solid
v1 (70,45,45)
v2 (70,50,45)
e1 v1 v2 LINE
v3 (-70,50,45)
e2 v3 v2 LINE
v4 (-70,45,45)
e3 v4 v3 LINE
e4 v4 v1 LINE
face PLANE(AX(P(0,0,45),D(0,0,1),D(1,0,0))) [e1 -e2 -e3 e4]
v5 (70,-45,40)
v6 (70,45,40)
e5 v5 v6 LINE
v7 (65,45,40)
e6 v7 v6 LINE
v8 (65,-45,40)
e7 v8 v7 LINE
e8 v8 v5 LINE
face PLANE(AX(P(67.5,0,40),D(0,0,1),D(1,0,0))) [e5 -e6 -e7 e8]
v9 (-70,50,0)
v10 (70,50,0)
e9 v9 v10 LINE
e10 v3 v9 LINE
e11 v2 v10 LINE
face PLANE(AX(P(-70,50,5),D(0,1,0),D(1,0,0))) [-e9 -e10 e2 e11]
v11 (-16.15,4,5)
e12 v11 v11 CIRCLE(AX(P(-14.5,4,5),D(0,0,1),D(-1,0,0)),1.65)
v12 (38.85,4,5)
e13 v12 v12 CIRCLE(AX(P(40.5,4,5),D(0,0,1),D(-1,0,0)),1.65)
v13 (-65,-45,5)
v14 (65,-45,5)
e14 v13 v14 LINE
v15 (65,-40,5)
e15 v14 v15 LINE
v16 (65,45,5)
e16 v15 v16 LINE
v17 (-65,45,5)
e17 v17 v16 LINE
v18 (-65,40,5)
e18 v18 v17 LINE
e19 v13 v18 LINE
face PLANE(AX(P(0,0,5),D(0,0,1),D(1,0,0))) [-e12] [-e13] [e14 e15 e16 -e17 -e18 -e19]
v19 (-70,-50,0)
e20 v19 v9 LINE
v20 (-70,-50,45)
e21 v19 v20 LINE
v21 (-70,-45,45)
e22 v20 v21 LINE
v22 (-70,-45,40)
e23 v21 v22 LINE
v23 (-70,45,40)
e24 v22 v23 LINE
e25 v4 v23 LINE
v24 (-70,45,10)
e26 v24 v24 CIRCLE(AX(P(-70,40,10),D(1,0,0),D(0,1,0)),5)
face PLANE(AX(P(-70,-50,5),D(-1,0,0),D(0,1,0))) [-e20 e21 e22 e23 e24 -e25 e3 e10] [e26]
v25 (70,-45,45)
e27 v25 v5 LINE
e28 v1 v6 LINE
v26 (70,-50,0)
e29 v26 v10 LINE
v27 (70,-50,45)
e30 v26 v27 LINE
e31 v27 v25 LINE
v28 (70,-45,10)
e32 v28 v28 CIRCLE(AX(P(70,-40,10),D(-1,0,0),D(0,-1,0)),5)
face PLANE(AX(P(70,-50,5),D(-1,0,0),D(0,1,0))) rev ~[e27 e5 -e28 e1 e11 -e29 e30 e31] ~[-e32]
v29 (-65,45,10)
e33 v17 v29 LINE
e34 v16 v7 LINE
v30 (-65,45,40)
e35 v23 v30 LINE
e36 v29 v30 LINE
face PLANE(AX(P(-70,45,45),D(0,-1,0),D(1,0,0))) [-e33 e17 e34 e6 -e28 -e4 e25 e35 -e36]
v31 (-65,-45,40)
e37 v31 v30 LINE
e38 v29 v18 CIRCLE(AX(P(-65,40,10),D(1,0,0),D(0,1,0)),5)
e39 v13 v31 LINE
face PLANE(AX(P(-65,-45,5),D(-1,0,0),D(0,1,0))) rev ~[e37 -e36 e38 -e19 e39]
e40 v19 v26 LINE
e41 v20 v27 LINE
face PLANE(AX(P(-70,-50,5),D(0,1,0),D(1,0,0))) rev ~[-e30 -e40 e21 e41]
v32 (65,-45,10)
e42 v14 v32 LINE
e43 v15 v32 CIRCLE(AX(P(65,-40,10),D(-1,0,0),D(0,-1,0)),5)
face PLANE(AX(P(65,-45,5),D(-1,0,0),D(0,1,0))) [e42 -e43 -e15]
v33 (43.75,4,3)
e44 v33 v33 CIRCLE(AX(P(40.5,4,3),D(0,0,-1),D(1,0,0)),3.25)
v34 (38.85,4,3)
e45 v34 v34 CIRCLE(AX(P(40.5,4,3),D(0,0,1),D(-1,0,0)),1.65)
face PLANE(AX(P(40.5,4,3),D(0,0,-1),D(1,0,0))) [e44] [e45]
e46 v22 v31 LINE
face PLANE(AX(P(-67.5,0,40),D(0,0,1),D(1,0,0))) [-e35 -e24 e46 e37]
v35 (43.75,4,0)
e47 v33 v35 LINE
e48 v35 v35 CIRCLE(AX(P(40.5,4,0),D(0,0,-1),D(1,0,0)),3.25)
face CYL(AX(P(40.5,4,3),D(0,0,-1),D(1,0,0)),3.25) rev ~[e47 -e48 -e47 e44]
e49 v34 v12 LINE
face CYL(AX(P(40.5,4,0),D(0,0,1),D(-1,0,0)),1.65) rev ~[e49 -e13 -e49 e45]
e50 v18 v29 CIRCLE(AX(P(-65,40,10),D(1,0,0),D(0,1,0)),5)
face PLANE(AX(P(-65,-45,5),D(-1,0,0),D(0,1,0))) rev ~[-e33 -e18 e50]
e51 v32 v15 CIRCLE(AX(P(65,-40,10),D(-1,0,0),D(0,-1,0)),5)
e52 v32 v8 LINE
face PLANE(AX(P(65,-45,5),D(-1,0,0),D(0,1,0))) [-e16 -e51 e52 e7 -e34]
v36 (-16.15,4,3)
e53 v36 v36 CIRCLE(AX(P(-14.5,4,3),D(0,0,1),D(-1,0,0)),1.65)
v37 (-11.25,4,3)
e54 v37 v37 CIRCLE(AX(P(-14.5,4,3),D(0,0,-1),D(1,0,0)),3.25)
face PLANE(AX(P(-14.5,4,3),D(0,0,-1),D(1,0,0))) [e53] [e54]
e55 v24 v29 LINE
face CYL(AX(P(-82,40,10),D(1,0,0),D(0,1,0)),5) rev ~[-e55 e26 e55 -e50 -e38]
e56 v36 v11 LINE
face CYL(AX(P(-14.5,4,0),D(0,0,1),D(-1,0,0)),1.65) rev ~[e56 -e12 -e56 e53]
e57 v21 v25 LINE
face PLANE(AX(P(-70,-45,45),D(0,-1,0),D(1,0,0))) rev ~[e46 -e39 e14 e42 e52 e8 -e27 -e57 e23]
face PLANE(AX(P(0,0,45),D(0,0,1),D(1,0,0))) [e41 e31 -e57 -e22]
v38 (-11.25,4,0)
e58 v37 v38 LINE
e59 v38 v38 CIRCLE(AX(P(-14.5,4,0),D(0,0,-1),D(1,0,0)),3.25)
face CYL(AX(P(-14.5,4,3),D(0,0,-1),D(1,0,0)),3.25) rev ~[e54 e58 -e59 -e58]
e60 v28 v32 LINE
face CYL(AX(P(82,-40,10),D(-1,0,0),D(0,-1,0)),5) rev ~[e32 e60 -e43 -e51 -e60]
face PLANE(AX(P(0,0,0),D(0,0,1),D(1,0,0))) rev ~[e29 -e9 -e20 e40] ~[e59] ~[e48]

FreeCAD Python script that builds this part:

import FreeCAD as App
import Part
import Sketcher

V = App.Vector

doc = App.newDocument("Part")
body = doc.addObject("PartDesign::Body", "Body")

# Sketch on XY plane
sketch1 = doc.addObject("Sketcher::SketchObject", "Sketch")
body.addObject(sketch1)
sketch1.AttachmentSupport = (doc.XY_Plane, [""])
sketch1.MapMode = "FlatFace"
sketch1.addGeometry([
    Part.LineSegment(V(-70, 50, 0), V(-70, -50, 0)),
    Part.LineSegment(V(-70, -50, 0), V(70, -50, 0)),
    Part.LineSegment(V(70, -50, 0), V(70, 50, 0)),
    Part.LineSegment(V(70, 50, 0), V(-70, 50, 0)),
], False)
sketch1.addConstraint([
    Sketcher.Constraint("Coincident", 0, 2, 1, 1),
    Sketcher.Constraint("Coincident", 1, 2, 2, 1),
    Sketcher.Constraint("Coincident", 2, 2, 3, 1),
    Sketcher.Constraint("Coincident", 3, 2, 0, 1),
    Sketcher.Constraint("Vertical", 0),
    Sketcher.Constraint("Horizontal", 1),
    Sketcher.Constraint("Vertical", 2),
    Sketcher.Constraint("Horizontal", 3),
    Sketcher.Constraint("Symmetric", 0, 2, 2, 2, -1, 1),
    Sketcher.Constraint("DistanceX", 1, 1, 1, 2, 140.0),
    Sketcher.Constraint("DistanceY", 0, 2, 0, 1, 100.0),
])
pad1 = doc.addObject("PartDesign::Pad", "Pad")
body.addObject(pad1)
pad1.Profile = sketch1
pad1.Length = 5

# Sketch on XY plane
sketch2 = doc.addObject("Sketcher::SketchObject", "Sketch001")
body.addObject(sketch2)
sketch2.AttachmentSupport = (doc.XY_Plane, [""])
sketch2.MapMode = "FlatFace"
sketch2.AttachmentOffset = App.Placement(V(0, 0, 5), App.Rotation())
sketch2.addGeometry([
    Part.LineSegment(V(-70, 50, 0), V(-70, -50, 0)),  # 0
    Part.LineSegment(V(-70, -50, 0), V(70, -50, 0)),  # 1
    Part.LineSegment(V(70, -50, 0), V(70, 50, 0)),  # 2
    Part.LineSegment(V(70, 50, 0), V(-70, 50, 0)),  # 3
    Part.LineSegment(V(65, -45, 0), V(-65, -45, 0)),  # 4
    Part.LineSegment(V(-65, -45, 0), V(-65, 45, 0)),  # 5
    Part.LineSegment(V(-65, 45, 0), V(65, 45, 0)),  # 6
    Part.LineSegment(V(65, 45, 0), V(65, -45, 0)),  # 7
], False)
sketch2.addConstraint([
    Sketcher.Constraint("Coincident", 0, 2, 1, 1),
    Sketcher.Constraint("Coincident", 1, 2, 2, 1),
    Sketcher.Constraint("Coincident", 2, 2, 3, 1),
    Sketcher.Constraint("Coincident", 3, 2, 0, 1),
    Sketcher.Constraint("Coincident", 4, 2, 5, 1),
    Sketcher.Constraint("Coincident", 5, 2, 6, 1),
    Sketcher.Constraint("Coincident", 6, 2, 7, 1),
    Sketcher.Constraint("Coincident", 7, 2, 4, 1),
    Sketcher.Constraint("Vertical", 0),
    Sketcher.Constraint("Horizontal", 1),
    Sketcher.Constraint("Vertical", 2),
    Sketcher.Constraint("Horizontal", 3),
    Sketcher.Constraint("Horizontal", 4),
    Sketcher.Constraint("Vertical", 5),
    Sketcher.Constraint("Horizontal", 6),
    Sketcher.Constraint("Vertical", 7),
    Sketcher.Constraint("Symmetric", 0, 2, 2, 2, -1, 1),
    Sketcher.Constraint("Symmetric", 4, 2, 6, 2, -1, 1),
    Sketcher.Constraint("DistanceX", 1, 1, 1, 2, 140.0),
    Sketcher.Constraint("DistanceX", 4, 2, 4, 1, 130.0),
    Sketcher.Constraint("DistanceY", 0, 2, 0, 1, 100.0),
    Sketcher.Constraint("DistanceY", 5, 1, 5, 2, 90.0),
])
pad2 = doc.addObject("PartDesign::Pad", "Pad001")
body.addObject(pad2)
pad2.Profile = sketch2
pad2.Length = 40

# Sketch on XY plane
sketch3 = doc.addObject("Sketcher::SketchObject", "Sketch002")
body.addObject(sketch3)
sketch3.AttachmentSupport = (doc.XY_Plane, [""])
sketch3.MapMode = "FlatFace"
sketch3.addGeometry([
    Part.Circle(V(40.5, 4, 0), V(0, 0, 1), 1.6),
    Part.Circle(V(-14.5, 4, 0), V(0, 0, 1), 1.6),
], False)
sketch3.addConstraint([
    Sketcher.Constraint("Equal", 0, 1),
    Sketcher.Constraint("Horizontal", 0, 3, 1, 3),
    Sketcher.Constraint("Diameter", 0, 3.3),
    Sketcher.Constraint("DistanceY", -1, 1, 0, 3, 4.0),
    Sketcher.Constraint("DistanceX", 1, 3, 0, 3, 55.0),
    Sketcher.Constraint("DistanceX", -1, 1, 0, 3, 40.5),
])
doc.recompute()
hole = doc.addObject("PartDesign::Hole", "Hole")
body.addObject(hole)
hole.Profile = sketch3
hole.ThreadType = "None"
hole.Diameter = 3.3
hole.DepthType = "ThroughAll"
hole.HoleCutType = "Counterbore"
hole.HoleCutDiameter = 6.5
hole.HoleCutDepth = 3
hole.Reversed = True

# Sketch on YZ plane
sketch4 = doc.addObject("Sketcher::SketchObject", "Sketch003")
body.addObject(sketch4)
sketch4.AttachmentSupport = (doc.YZ_Plane, [""])
sketch4.MapMode = "FlatFace"
sketch4.AttachmentOffset = App.Placement(V(0, 0, 70), App.Rotation())
sketch4.addGeometry(Part.Circle(V(-40, 10, 0), V(0, 0, 1), 5), False)
sketch4.addConstraint([
    Sketcher.Constraint("Diameter", 0, 10.0),
    Sketcher.Constraint("DistanceX", 0, 3, -1, 1, 40.0),
    Sketcher.Constraint("DistanceY", -1, 1, 0, 3, 10.0),
])
doc.recompute()
hole2 = doc.addObject("PartDesign::Hole", "Hole001")
body.addObject(hole2)
hole2.Profile = sketch4
hole2.ThreadType = "None"
hole2.Diameter = 10
hole2.DepthType = "Dimension"
hole2.Depth = 12
hole2.DrillPoint = "Angled"
hole2.DrillPointAngle = 118

# Sketch on YZ plane
sketch5 = doc.addObject("Sketcher::SketchObject", "Sketch004")
body.addObject(sketch5)
sketch5.AttachmentSupport = (doc.YZ_Plane, [""])
sketch5.MapMode = "FlatFace"
sketch5.AttachmentOffset = App.Placement(V(0, 0, -70), App.Rotation())
sketch5.addGeometry(Part.Circle(V(40, 10, 0), V(0, 0, 1), 5), False)
sketch5.addConstraint([
    Sketcher.Constraint("Diameter", 0, 10.0),
    Sketcher.Constraint("DistanceX", -1, 1, 0, 3, 40.0),
    Sketcher.Constraint("DistanceY", -1, 1, 0, 3, 10.0),
])
doc.recompute()
hole3 = doc.addObject("PartDesign::Hole", "Hole002")
body.addObject(hole3)
hole3.Profile = sketch5
hole3.ThreadType = "None"
hole3.Diameter = 10
hole3.DepthType = "Dimension"
hole3.Depth = 12
hole3.DrillPoint = "Angled"
hole3.DrillPointAngle = 118
hole3.Reversed = True

# Sketch on XY plane
sketch6 = doc.addObject("Sketcher::SketchObject", "Sketch005")
body.addObject(sketch6)
sketch6.AttachmentSupport = (doc.XY_Plane, [""])
sketch6.MapMode = "FlatFace"
sketch6.AttachmentOffset = App.Placement(V(0, 0, 45), App.Rotation())
sketch6.addGeometry([
    Part.LineSegment(V(-70, 45, 0), V(-70, -45, 0)),  # 0
    Part.LineSegment(V(-70, -45, 0), V(-65, -45, 0)),  # 1
    Part.LineSegment(V(-65, -45, 0), V(-65, 45, 0)),  # 2
    Part.LineSegment(V(-65, 45, 0), V(-70, 45, 0)),  # 3
    Part.LineSegment(V(65, 45, 0), V(65, -45, 0)),  # 4
    Part.LineSegment(V(65, -45, 0), V(70, -45, 0)),  # 5
    Part.LineSegment(V(70, -45, 0), V(70, 45, 0)),  # 6
    Part.LineSegment(V(70, 45, 0), V(65, 45, 0)),  # 7
], False)
sketch6.addConstraint([
    Sketcher.Constraint("Coincident", 0, 2, 1, 1),
    Sketcher.Constraint("Coincident", 1, 2, 2, 1),
    Sketcher.Constraint("Coincident", 2, 2, 3, 1),
    Sketcher.Constraint("Coincident", 3, 2, 0, 1),
    Sketcher.Constraint("Coincident", 4, 2, 5, 1),
    Sketcher.Constraint("Coincident", 5, 2, 6, 1),
    Sketcher.Constraint("Coincident", 6, 2, 7, 1),
    Sketcher.Constraint("Coincident", 7, 2, 4, 1),
    Sketcher.Constraint("Vertical", 0),
    Sketcher.Constraint("Horizontal", 1),
    Sketcher.Constraint("Vertical", 2),
    Sketcher.Constraint("Horizontal", 3),
    Sketcher.Constraint("Vertical", 4),
    Sketcher.Constraint("Horizontal", 5),
    Sketcher.Constraint("Vertical", 6),
    Sketcher.Constraint("Horizontal", 7),
    Sketcher.Constraint("Symmetric", 2, 2, 4, 2, -1, 1),
    Sketcher.Constraint("Symmetric", 0, 2, 6, 2, -1, 1),
    Sketcher.Constraint("Horizontal", 1, 2, 4, 2),
    Sketcher.Constraint("DistanceX", 1, 1, 1, 2, 5.0),
    Sketcher.Constraint("DistanceY", 0, 2, 0, 1, 90.0),
    Sketcher.Constraint("DistanceX", 0, 2, -1, 1, 70.0),
])
pocket1 = doc.addObject("PartDesign::Pocket", "Pocket")
body.addObject(pocket1)
pocket1.Profile = sketch6
pocket1.Length = 5

doc.recompute()
